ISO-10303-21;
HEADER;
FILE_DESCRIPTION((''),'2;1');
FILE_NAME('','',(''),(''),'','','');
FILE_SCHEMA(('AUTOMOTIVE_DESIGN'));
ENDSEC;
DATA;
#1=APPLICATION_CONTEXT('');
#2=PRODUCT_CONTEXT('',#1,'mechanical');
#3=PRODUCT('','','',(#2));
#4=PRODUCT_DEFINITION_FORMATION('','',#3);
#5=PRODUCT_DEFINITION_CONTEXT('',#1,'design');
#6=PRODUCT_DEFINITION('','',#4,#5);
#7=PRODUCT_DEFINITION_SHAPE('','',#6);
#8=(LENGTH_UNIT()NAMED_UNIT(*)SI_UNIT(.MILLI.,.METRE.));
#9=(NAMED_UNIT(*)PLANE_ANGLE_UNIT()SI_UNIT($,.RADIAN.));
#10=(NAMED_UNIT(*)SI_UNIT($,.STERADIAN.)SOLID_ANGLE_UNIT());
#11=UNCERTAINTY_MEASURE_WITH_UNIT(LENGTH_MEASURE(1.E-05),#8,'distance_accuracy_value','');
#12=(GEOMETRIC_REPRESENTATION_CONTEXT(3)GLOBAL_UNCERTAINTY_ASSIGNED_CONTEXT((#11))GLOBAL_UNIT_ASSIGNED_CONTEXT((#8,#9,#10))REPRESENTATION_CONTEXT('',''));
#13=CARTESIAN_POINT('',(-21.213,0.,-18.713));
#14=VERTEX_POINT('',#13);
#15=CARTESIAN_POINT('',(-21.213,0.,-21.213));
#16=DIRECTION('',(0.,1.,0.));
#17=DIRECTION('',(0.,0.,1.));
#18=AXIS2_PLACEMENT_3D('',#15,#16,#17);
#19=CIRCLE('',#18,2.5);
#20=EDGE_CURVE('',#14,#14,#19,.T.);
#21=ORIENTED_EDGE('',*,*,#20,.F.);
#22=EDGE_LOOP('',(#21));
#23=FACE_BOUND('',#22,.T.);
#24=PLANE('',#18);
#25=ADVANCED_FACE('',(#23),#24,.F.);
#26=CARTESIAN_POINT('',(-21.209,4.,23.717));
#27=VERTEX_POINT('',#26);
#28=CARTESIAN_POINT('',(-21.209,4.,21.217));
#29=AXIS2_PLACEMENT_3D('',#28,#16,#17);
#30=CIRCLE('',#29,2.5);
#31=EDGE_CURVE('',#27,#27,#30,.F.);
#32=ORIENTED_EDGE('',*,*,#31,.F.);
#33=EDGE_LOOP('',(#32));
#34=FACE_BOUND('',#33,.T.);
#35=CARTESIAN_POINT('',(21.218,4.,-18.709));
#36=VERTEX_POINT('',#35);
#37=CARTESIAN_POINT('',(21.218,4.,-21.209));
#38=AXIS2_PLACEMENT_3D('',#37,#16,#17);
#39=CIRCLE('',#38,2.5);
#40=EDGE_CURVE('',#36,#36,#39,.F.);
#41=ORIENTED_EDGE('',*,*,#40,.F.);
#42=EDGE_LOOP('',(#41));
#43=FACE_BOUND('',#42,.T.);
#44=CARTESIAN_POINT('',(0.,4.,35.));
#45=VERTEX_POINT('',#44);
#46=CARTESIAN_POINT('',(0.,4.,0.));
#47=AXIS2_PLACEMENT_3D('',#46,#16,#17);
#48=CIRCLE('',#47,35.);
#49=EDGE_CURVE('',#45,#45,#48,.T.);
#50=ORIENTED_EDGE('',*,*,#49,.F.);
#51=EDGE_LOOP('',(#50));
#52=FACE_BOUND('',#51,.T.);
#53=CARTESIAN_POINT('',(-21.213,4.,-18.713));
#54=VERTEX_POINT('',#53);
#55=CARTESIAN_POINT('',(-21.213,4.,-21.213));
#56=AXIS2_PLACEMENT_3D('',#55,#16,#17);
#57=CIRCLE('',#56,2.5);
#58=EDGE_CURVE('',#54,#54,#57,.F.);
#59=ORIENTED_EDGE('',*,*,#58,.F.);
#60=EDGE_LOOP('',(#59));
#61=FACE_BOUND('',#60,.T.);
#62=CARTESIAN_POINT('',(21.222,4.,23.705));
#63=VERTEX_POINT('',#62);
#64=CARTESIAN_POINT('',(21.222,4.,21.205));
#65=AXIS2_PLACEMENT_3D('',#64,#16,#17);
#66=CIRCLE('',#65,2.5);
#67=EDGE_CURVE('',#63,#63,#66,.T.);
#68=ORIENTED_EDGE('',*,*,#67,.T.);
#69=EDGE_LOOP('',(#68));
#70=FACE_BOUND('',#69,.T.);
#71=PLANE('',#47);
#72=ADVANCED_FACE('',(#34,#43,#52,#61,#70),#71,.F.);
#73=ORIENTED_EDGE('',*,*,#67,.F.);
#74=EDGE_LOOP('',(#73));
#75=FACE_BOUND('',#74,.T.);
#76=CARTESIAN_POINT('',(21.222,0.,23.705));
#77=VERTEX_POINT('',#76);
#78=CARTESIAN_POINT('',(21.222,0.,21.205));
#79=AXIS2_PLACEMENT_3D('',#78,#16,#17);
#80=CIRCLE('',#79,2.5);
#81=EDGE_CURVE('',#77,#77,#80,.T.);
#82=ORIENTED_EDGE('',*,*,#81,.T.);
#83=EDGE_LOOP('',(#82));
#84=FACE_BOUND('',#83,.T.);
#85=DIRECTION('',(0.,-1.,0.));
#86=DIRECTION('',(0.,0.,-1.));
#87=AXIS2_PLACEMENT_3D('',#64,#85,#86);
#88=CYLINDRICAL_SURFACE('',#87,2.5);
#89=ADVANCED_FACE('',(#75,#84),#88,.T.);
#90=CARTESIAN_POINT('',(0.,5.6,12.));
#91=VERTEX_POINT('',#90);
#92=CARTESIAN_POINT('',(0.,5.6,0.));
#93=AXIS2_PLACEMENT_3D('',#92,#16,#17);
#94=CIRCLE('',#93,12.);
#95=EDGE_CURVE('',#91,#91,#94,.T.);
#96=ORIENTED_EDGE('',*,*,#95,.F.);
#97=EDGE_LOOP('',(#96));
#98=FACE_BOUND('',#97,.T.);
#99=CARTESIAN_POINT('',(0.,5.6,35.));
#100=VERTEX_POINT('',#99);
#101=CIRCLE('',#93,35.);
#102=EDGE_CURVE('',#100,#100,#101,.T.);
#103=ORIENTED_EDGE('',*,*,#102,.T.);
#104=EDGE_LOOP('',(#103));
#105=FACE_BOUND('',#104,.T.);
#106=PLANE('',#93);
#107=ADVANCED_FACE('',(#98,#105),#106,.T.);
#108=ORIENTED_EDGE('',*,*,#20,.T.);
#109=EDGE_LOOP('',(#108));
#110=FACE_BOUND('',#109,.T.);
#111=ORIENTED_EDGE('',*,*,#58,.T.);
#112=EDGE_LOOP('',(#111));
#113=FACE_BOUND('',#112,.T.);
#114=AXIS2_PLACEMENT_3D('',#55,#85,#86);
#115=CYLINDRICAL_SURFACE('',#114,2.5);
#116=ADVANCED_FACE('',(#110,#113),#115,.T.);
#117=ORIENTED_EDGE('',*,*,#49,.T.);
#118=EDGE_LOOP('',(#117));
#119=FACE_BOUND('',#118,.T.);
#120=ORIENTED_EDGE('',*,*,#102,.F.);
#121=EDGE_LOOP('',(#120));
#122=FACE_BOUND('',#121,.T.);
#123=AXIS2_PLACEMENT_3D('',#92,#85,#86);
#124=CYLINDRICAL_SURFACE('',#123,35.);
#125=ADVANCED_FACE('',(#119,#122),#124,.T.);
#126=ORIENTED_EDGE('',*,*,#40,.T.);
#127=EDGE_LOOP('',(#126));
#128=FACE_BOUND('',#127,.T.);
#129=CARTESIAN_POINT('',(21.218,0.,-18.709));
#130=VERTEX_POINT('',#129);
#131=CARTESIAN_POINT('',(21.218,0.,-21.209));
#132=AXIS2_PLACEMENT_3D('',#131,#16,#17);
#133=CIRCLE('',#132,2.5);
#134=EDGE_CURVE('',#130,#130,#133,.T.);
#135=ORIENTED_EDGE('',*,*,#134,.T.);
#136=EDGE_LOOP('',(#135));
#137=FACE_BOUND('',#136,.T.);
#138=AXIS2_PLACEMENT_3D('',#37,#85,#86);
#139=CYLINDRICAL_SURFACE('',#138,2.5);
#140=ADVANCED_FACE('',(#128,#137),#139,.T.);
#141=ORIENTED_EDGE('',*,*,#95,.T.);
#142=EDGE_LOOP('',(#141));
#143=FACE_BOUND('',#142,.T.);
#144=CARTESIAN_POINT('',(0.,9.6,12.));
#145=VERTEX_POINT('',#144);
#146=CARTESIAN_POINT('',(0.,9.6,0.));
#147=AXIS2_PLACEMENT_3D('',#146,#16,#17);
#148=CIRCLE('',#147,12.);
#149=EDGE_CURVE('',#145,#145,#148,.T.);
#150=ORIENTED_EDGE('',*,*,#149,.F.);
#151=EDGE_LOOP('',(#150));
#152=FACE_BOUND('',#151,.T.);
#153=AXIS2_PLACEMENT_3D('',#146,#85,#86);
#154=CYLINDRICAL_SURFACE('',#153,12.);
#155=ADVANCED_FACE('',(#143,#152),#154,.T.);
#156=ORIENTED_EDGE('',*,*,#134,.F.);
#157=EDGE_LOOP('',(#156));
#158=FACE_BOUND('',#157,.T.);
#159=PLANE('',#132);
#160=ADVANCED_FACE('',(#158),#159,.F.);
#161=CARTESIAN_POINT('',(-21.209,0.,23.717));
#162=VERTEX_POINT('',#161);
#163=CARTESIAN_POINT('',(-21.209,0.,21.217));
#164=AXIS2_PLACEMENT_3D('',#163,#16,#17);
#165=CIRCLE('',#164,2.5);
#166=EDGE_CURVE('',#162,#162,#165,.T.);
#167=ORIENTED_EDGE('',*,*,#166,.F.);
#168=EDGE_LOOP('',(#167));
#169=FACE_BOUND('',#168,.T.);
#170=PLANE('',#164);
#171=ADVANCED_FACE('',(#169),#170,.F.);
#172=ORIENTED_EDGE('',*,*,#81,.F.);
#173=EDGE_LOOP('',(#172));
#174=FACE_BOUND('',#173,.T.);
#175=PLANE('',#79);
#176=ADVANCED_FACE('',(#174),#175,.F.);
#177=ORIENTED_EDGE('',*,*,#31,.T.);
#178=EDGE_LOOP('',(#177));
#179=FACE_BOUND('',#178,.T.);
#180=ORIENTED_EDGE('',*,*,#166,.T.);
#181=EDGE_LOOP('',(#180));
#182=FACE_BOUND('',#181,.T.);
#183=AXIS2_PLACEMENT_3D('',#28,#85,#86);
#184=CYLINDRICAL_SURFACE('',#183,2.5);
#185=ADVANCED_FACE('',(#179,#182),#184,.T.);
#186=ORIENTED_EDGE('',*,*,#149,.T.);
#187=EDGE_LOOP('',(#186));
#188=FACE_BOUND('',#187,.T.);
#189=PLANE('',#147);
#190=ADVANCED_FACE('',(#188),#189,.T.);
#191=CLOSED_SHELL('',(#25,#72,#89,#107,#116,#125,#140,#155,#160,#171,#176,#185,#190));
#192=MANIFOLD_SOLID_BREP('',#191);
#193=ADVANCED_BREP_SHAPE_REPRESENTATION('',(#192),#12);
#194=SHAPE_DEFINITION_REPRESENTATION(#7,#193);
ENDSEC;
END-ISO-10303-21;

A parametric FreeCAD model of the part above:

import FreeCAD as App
import Part
import Sketcher
from FreeCAD import Vector

doc = App.newDocument("Part")
body = doc.addObject("PartDesign::Body", "Body")

sketch1 = body.newObject("Sketcher::SketchObject", "Sketch")
sketch1.AttachmentSupport = (doc.getObject("XZ_Plane"), [""])
sketch1.MapMode = "FlatFace"
sketch1.addGeometry(Part.Circle(Vector(21.222, 21.205, 0), Vector(0, 0, 1), 2.5), False)
sketch1.addConstraint([
    Sketcher.Constraint("Diameter", 0, 5.0),
    Sketcher.Constraint("DistanceX", -1, 1, 0, 3, 21.222),
    Sketcher.Constraint("DistanceY", -1, 1, 0, 3, 21.205),
])
pad1 = body.newObject("PartDesign::Pad", "Pad")
pad1.Profile = sketch1
pad1.Length = 4
pad1.Reversed = True
body2 = doc.addObject("PartDesign::Body", "Body001")

sketch2 = body2.newObject("Sketcher::SketchObject", "Sketch001")
sketch2.AttachmentSupport = (doc.getObject("XZ_Plane001"), [""])
sketch2.MapMode = "FlatFace"
sketch2.addGeometry(Part.Circle(Vector(-21.209, 21.217, 0), Vector(0, 0, 1), 2.5), False)
sketch2.addConstraint([
    Sketcher.Constraint("Diameter", 0, 5.0),
    Sketcher.Constraint("DistanceX", 0, 3, -1, 1, 21.209),
    Sketcher.Constraint("DistanceY", -1, 1, 0, 3, 21.217),
])
pad2 = body2.newObject("PartDesign::Pad", "Pad001")
pad2.Profile = sketch2
pad2.Length = 4
pad2.Reversed = True
body3 = doc.addObject("PartDesign::Body", "Body002")

sketch3 = body3.newObject("Sketcher::SketchObject", "Sketch002")
sketch3.AttachmentSupport = (doc.getObject("XZ_Plane002"), [""])
sketch3.MapMode = "FlatFace"
sketch3.addGeometry(Part.Circle(Vector(-21.213, -21.213, 0), Vector(0, 0, 1), 2.5), False)
sketch3.addConstraint([
    Sketcher.Constraint("Diameter", 0, 5.0),
    Sketcher.Constraint("DistanceX", 0, 3, -1, 1, 21.213),
    Sketcher.Constraint("DistanceY", 0, 3, -1, 1, 21.213),
])
pad3 = body3.newObject("PartDesign::Pad", "Pad002")
pad3.Profile = sketch3
pad3.Length = 4
pad3.Reversed = True
body4 = doc.addObject("PartDesign::Body", "Body003")

sketch4 = body4.newObject("Sketcher::SketchObject", "Sketch003")
sketch4.AttachmentSupport = (doc.getObject("XZ_Plane003"), [""])
sketch4.MapMode = "FlatFace"
sketch4.addGeometry(Part.Circle(Vector(21.218, -21.209, 0), Vector(0, 0, 1), 2.5), False)
sketch4.addConstraint([
    Sketcher.Constraint("Diameter", 0, 5.0),
    Sketcher.Constraint("DistanceX", -1, 1, 0, 3, 21.218),
    Sketcher.Constraint("DistanceY", 0, 3, -1, 1, 21.209),
])
pad4 = body4.newObject("PartDesign::Pad", "Pad003")
pad4.Profile = sketch4
pad4.Length = 4
pad4.Reversed = True
body.AllowCompound = True
doc.recompute()

boolean = body.newObject("PartDesign::Boolean", "Boolean")
boolean.Type = "Fuse"
boolean.addObjects([body2])
doc.recompute()

boolean2 = body.newObject("PartDesign::Boolean", "Boolean001")
boolean2.Type = "Fuse"
boolean2.addObjects([body3])
doc.recompute()

boolean3 = body.newObject("PartDesign::Boolean", "Boolean002")
boolean3.Type = "Fuse"
boolean3.addObjects([body4])

sketch5 = body.newObject("Sketcher::SketchObject", "Sketch004")
sketch5.AttachmentSupport = (doc.getObject("XZ_Plane"), [""])
sketch5.MapMode = "FlatFace"
sketch5.AttachmentOffset = App.Placement(Vector(0, 0, -4), App.Rotation())
sketch5.addGeometry(Part.Circle(Vector(0, 0, 0), Vector(0, 0, 1), 35), False)
sketch5.addConstraint([
    Sketcher.Constraint("Coincident", 0, 3, -1, 1),
    Sketcher.Constraint("Diameter", 0, 70.0),
])
pad5 = body.newObject("PartDesign::Pad", "Pad004")
pad5.Profile = sketch5
pad5.Length = 1.6
pad5.Reversed = True

sketch6 = body.newObject("Sketcher::SketchObject", "Sketch005")
sketch6.AttachmentSupport = (doc.getObject("XZ_Plane"), [""])
sketch6.MapMode = "FlatFace"
sketch6.AttachmentOffset = App.Placement(Vector(0, 0, -5.6), App.Rotation())
sketch6.addGeometry(Part.Circle(Vector(0, 0, 0), Vector(0, 0, 1), 12), False)
sketch6.addConstraint([
    Sketcher.Constraint("Coincident", 0, 3, -1, 1),
    Sketcher.Constraint("Diameter", 0, 24.0),
])
pad6 = body.newObject("PartDesign::Pad", "Pad005")
pad6.Profile = sketch6
pad6.Length = 4
pad6.Reversed = True

doc.recompute()
